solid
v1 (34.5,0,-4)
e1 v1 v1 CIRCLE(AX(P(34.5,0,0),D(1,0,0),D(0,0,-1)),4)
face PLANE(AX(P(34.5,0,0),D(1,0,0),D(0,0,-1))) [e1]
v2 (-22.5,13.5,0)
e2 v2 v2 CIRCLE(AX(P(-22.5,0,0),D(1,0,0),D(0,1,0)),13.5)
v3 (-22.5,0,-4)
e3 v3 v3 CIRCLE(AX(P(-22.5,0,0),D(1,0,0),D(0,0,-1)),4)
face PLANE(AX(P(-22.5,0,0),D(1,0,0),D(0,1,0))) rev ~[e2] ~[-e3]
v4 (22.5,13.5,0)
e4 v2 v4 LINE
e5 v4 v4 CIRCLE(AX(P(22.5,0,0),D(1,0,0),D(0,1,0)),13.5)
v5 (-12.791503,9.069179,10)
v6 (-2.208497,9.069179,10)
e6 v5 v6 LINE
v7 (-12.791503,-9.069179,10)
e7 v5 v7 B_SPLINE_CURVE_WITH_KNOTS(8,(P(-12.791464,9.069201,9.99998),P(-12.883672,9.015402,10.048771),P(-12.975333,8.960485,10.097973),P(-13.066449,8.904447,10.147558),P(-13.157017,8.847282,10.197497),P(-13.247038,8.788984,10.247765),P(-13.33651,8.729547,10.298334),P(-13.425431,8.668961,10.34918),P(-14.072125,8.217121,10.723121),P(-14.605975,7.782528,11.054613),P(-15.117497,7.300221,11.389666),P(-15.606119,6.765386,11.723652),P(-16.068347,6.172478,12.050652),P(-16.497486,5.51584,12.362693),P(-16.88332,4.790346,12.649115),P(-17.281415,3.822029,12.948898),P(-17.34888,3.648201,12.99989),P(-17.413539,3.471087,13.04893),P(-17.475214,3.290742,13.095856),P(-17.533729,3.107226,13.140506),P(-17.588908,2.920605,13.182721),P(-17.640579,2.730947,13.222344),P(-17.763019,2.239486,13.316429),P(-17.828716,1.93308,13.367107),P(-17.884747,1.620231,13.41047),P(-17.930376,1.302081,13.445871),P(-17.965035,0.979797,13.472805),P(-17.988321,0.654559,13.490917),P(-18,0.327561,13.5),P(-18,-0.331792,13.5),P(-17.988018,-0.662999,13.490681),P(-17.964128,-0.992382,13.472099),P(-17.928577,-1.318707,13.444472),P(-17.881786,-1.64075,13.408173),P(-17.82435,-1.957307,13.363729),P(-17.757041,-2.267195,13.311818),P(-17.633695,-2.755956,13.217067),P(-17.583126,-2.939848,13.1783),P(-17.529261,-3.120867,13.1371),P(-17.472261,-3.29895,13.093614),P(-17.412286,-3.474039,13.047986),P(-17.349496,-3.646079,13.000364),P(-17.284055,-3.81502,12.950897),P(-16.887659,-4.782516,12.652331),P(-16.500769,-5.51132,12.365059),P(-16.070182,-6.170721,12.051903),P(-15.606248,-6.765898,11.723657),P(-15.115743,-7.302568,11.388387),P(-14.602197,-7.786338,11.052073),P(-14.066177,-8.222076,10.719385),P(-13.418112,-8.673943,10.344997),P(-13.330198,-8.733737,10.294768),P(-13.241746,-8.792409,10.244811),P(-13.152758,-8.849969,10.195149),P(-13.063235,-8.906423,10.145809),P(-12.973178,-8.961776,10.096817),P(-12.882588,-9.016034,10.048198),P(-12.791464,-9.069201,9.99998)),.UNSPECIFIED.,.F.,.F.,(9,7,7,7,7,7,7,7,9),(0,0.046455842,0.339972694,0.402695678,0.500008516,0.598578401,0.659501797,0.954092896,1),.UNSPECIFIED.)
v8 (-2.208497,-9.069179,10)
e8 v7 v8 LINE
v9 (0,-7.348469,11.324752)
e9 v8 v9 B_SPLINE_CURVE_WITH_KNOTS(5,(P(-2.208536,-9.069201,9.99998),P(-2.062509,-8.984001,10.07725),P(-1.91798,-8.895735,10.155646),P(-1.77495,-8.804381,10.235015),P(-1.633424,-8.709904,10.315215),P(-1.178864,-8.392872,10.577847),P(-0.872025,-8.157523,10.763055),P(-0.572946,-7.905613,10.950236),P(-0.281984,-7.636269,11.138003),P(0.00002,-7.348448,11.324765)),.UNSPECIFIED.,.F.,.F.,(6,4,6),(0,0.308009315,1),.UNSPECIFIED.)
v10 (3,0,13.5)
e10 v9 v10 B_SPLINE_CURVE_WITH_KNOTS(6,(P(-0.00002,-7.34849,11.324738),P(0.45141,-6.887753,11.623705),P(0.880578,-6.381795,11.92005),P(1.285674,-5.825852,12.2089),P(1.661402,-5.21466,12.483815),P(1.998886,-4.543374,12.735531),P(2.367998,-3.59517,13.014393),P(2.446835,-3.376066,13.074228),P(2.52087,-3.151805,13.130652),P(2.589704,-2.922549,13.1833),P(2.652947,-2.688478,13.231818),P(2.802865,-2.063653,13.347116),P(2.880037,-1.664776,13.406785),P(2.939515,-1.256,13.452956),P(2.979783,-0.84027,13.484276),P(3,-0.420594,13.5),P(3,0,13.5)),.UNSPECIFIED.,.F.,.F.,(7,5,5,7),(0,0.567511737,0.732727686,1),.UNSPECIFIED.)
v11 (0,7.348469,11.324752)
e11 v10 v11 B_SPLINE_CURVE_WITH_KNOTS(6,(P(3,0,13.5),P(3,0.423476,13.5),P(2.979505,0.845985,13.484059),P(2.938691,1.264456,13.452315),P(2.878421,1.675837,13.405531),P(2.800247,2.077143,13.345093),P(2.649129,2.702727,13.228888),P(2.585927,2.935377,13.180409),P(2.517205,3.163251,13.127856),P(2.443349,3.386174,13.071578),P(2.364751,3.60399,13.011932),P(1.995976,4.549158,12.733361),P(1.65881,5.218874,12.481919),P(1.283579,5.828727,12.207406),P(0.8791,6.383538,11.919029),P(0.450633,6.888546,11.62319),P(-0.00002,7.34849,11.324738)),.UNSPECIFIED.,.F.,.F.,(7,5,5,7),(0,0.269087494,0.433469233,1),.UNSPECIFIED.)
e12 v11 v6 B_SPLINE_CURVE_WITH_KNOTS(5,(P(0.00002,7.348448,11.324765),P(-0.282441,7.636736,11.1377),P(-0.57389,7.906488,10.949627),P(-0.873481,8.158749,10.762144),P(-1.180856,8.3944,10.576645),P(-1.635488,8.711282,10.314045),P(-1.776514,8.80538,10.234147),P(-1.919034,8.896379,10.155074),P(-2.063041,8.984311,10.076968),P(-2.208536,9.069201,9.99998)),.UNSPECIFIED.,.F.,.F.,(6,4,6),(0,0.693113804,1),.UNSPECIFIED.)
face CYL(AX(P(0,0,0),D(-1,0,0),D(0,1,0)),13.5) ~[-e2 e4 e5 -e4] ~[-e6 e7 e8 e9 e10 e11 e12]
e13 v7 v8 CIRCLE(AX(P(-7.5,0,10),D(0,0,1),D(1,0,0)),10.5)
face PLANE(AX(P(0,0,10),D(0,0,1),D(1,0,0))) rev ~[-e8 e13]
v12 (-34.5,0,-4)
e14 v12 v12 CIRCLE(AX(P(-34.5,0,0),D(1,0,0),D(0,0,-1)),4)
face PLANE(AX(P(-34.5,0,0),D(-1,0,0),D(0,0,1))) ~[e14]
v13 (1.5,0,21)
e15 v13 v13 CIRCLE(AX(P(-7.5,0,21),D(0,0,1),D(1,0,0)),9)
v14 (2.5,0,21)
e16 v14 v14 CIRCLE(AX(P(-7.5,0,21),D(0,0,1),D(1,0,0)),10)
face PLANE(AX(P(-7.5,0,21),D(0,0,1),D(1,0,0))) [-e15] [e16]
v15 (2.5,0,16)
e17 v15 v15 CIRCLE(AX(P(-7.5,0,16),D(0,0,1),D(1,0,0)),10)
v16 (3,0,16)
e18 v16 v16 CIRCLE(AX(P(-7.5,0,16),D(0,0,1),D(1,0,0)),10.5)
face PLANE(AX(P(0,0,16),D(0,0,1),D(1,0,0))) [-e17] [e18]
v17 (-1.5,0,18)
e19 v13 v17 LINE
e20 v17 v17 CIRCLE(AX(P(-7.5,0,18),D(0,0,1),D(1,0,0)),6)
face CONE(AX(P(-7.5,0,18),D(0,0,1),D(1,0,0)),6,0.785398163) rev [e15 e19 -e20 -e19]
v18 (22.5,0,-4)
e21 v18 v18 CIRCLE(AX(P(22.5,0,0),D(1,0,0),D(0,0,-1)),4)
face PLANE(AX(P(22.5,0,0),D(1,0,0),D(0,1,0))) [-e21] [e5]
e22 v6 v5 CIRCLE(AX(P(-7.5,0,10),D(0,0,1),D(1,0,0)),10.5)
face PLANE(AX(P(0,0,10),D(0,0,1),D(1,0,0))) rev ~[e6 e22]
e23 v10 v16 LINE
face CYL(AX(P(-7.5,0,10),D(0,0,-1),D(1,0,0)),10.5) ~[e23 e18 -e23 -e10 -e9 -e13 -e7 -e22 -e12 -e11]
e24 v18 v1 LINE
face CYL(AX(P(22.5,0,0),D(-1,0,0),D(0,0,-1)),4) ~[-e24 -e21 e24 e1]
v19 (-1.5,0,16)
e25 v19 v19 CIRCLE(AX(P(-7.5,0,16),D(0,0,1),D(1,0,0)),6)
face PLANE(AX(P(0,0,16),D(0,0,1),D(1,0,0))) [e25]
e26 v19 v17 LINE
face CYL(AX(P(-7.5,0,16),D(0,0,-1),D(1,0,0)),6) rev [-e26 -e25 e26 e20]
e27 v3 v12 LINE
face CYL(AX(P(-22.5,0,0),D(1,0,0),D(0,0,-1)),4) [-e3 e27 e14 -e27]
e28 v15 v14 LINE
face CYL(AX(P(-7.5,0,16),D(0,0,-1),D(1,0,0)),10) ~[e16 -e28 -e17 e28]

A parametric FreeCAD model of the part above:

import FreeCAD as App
import Part
import Sketcher
Q = App.Units.Quantity


def edges_at(feature, points):
    """Names of the edges that pass closest to the given points."""
    edges = feature.Shape.Edges
    near = lambda p: min(range(len(edges)), key=lambda i: edges[i].distToShape(Part.Vertex(*p))[0])
    return sorted({f"Edge{near(p) + 1}" for p in points})

doc = App.newDocument("Part")
params = doc.addObject("Spreadsheet::Sheet", "Params")
for row, (alias, value) in enumerate([
    ("sketch1_diameter", "27 mm"),
    ("pad1_length", "45 mm"),
    ("sketch2_diameter", "8 mm"),
    ("pad2_length", "12 mm"),
    ("sketch3_diameter", "21 mm"),
    ("pad3_length", "6 mm"),
    ("sketch4_diameter", "20 mm"),
    ("sketch4_diameter2", "12 mm"),
    ("pad4_length", "5 mm"),
    ("chamfer_size", "3 mm"),
], start=1):
    params.set(f"A{row}", alias)
    params.set(f"B{row}", "=" + value)
    params.setAlias(f"B{row}", alias)

body = doc.addObject("PartDesign::Body", "Body")

# Sketch on YZ plane
sketch1 = body.newObject("Sketcher::SketchObject", "Sketch")
sketch1.AttachmentSupport = (doc.getObject("YZ_Plane"), [""])
sketch1.MapMode = "FlatFace"
sketch1.addGeometry(Part.Circle(App.Vector(0, 0, 0), App.Vector(0, 0, 1), 14), False)
sketch1.addConstraint(Sketcher.Constraint("Coincident", 0, 3, -1, 1))
sketch1.addConstraint(Sketcher.Constraint("Diameter", 0, Q("27 mm")))
sketch1.setExpression("Constraints[1]", "Params.sketch1_diameter")
pad1 = body.newObject("PartDesign::Pad", "Pad")
pad1.Profile = sketch1
pad1.setExpression("Length", "Params.pad1_length")
pad1.Midplane = True

# Sketch on YZ plane
sketch2 = body.newObject("Sketcher::SketchObject", "Sketch001")
sketch2.AttachmentSupport = (doc.getObject("YZ_Plane"), [""])
sketch2.MapMode = "FlatFace"
sketch2.AttachmentOffset = App.Placement(App.Vector(0, 0, 22.5), App.Rotation())
sketch2.addGeometry(Part.Circle(App.Vector(0, 0, 0), App.Vector(0, 0, 1), 4), False)
sketch2.addConstraint(Sketcher.Constraint("Coincident", 0, 3, -1, 1))
sketch2.addConstraint(Sketcher.Constraint("Diameter", 0, Q("8 mm")))
sketch2.setExpression("Constraints[1]", "Params.sketch2_diameter")
pad2 = body.newObject("PartDesign::Pad", "Pad001")
pad2.Profile = sketch2
pad2.setExpression("Length", "Params.pad2_length")
doc.recompute()

mirrored = body.newObject("PartDesign::Mirrored", "Mirrored")
mirrored.Originals = [pad2]
mirrored.MirrorPlane = (doc.getObject("YZ_Plane"), [""])
body.Tip = mirrored

# Sketch on XY plane
sketch3 = body.newObject("Sketcher::SketchObject", "Sketch002")
sketch3.AttachmentSupport = (doc.getObject("XY_Plane"), [""])
sketch3.MapMode = "FlatFace"
sketch3.AttachmentOffset = App.Placement(App.Vector(0, 0, 10), App.Rotation())
sketch3.addGeometry(Part.Circle(App.Vector(-8, 0, 0), App.Vector(0, 0, 1), 10), False)
sketch3.addConstraint(Sketcher.Constraint("PointOnObject", 0, 3, -1))
sketch3.addConstraint(Sketcher.Constraint("Diameter", 0, Q("21 mm")))
sketch3.addConstraint(Sketcher.Constraint("DistanceX", 0, 3, -1, 1, Q("7.5 mm")))
sketch3.setExpression("Constraints[1]", "Params.sketch3_diameter")
pad3 = body.newObject("PartDesign::Pad", "Pad002")
pad3.Profile = sketch3
pad3.setExpression("Length", "Params.pad3_length")

# Sketch on XY plane
sketch4 = body.newObject("Sketcher::SketchObject", "Sketch003")
sketch4.AttachmentSupport = (doc.getObject("XY_Plane"), [""])
sketch4.MapMode = "FlatFace"
sketch4.AttachmentOffset = App.Placement(App.Vector(0, 0, 16), App.Rotation())
sketch4.addGeometry(Part.Circle(App.Vector(-8, 0, 0), App.Vector(0, 0, 1), 10), False)
sketch4.addGeometry(Part.Circle(App.Vector(-8, 0, 0), App.Vector(0, 0, 1), 6), False)
sketch4.addConstraint(Sketcher.Constraint("Coincident", 1, 3, 0, 3))
sketch4.addConstraint(Sketcher.Constraint("PointOnObject", 0, 3, -1))
sketch4.addConstraint(Sketcher.Constraint("Diameter", 0, Q("20 mm")))
sketch4.addConstraint(Sketcher.Constraint("Diameter", 1, Q("12 mm")))
sketch4.addConstraint(Sketcher.Constraint("DistanceX", 0, 3, -1, 1, Q("7.5 mm")))
sketch4.setExpression("Constraints[2]", "Params.sketch4_diameter")
sketch4.setExpression("Constraints[3]", "Params.sketch4_diameter2")
pad4 = body.newObject("PartDesign::Pad", "Pad003")
pad4.Profile = sketch4
pad4.setExpression("Length", "Params.pad4_length")
doc.recompute()

chamfer = body.newObject("PartDesign::Chamfer", "Chamfer")
chamfer.Base = (pad4, edges_at(pad4, [(-13.5, 0, 21)]))
chamfer.setExpression("Size", "Params.chamfer_size")

doc.recompute()
